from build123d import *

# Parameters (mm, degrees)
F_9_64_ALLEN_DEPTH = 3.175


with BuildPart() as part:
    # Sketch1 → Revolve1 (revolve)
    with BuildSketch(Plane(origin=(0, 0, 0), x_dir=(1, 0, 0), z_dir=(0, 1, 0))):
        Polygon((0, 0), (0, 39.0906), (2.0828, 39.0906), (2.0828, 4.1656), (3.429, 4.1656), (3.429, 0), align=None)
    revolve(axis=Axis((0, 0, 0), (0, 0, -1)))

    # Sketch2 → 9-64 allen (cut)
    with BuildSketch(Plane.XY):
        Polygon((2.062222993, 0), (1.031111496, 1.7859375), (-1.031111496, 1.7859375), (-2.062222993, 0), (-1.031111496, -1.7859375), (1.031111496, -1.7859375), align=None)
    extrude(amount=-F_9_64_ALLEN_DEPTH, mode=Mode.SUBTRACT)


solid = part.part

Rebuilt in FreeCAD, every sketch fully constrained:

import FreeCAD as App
import Part
import Sketcher
Q = App.Units.Quantity


def add_polygon(sketch, points):
    """Adds a closed chain of lines whose ends are joined by coincident constraints."""
    first, n = sketch.GeometryCount, len(points)
    for a, b in zip(points, points[1:] + points[:1]):
        sketch.addGeometry(Part.LineSegment(App.Vector(*a, 0), App.Vector(*b, 0)), False)
    for i in range(n):
        sketch.addConstraint(Sketcher.Constraint("Coincident", first + i, 2, first + (i + 1) % n, 1))

doc = App.newDocument("Part")
body = doc.addObject("PartDesign::Body", "Body")

sketch1 = doc.addObject("Sketcher::SketchObject", "Sketch")
body.addObject(sketch1)
sketch1.AttachmentSupport = (doc.XZ_Plane, [""])
sketch1.MapMode = "FlatFace"
add_polygon(sketch1, [(0, -39.1), (0, 0), (3.4, 0), (3.4, -4.2), (2.1, -4.2), (2.1, -39.1)])
sketch1.addConstraint([
    Sketcher.Constraint("Vertical", 0),
    Sketcher.Constraint("Horizontal", 1),
    Sketcher.Constraint("Vertical", 2),
    Sketcher.Constraint("Horizontal", 3),
    Sketcher.Constraint("Vertical", 4),
    Sketcher.Constraint("Horizontal", 5),
    Sketcher.Constraint("Coincident", 0, 2, -1, 1),
    Sketcher.Constraint("DistanceX", 1, 1, 1, 2, Q("0.135 in")),
    Sketcher.Constraint("DistanceX", 3, 2, 3, 1, Q("0.053 in")),
    Sketcher.Constraint("DistanceY", 0, 1, 0, 2, Q("1.539 in")),
    Sketcher.Constraint("DistanceY", 2, 2, 2, 1, Q("0.164 in")),
])
revolution = doc.addObject("PartDesign::Revolution", "Revolution")
body.addObject(revolution)
revolution.Profile = sketch1
revolution.ReferenceAxis = (sketch1, ["V_Axis"])
revolution.Angle = 360

sketch2 = doc.addObject("Sketcher::SketchObject", "Sketch001")
body.addObject(sketch2)
sketch2.AttachmentSupport = (doc.XY_Plane, [""])
sketch2.MapMode = "FlatFace"
add_polygon(sketch2, [(2.1, 0), (1, 1.8), (-1, 1.8), (-2.1, 0), (-1, -1.8), (1, -1.8)])
sketch2.addConstraint([
    Sketcher.Constraint("Horizontal", 1),
    Sketcher.Constraint("Horizontal", 4),
    Sketcher.Constraint("Symmetric", 0, 2, 3, 2, -1, 1),
    Sketcher.Constraint("Symmetric", 2, 2, 5, 2, -1, 1),
    Sketcher.Constraint("PointOnObject", 2, 2, -1),
    Sketcher.Constraint("Parallel", 2, 5),
    Sketcher.Constraint("Vertical", 1, 2, 3, 2),
    Sketcher.Constraint("Angle", 0, Q("120 deg")),
    Sketcher.Constraint("DistanceY", 3, 2, 1, 2, Q("0.140625 in")),
    Sketcher.Constraint("DistanceX", 1, 2, 1, 1, Q("2.062223 mm")),
])
pocket1 = doc.addObject("PartDesign::Pocket", "Pocket")
body.addObject(pocket1)
pocket1.Profile = sketch2
pocket1.Length = Q("0.125 in")

doc.recompute()
